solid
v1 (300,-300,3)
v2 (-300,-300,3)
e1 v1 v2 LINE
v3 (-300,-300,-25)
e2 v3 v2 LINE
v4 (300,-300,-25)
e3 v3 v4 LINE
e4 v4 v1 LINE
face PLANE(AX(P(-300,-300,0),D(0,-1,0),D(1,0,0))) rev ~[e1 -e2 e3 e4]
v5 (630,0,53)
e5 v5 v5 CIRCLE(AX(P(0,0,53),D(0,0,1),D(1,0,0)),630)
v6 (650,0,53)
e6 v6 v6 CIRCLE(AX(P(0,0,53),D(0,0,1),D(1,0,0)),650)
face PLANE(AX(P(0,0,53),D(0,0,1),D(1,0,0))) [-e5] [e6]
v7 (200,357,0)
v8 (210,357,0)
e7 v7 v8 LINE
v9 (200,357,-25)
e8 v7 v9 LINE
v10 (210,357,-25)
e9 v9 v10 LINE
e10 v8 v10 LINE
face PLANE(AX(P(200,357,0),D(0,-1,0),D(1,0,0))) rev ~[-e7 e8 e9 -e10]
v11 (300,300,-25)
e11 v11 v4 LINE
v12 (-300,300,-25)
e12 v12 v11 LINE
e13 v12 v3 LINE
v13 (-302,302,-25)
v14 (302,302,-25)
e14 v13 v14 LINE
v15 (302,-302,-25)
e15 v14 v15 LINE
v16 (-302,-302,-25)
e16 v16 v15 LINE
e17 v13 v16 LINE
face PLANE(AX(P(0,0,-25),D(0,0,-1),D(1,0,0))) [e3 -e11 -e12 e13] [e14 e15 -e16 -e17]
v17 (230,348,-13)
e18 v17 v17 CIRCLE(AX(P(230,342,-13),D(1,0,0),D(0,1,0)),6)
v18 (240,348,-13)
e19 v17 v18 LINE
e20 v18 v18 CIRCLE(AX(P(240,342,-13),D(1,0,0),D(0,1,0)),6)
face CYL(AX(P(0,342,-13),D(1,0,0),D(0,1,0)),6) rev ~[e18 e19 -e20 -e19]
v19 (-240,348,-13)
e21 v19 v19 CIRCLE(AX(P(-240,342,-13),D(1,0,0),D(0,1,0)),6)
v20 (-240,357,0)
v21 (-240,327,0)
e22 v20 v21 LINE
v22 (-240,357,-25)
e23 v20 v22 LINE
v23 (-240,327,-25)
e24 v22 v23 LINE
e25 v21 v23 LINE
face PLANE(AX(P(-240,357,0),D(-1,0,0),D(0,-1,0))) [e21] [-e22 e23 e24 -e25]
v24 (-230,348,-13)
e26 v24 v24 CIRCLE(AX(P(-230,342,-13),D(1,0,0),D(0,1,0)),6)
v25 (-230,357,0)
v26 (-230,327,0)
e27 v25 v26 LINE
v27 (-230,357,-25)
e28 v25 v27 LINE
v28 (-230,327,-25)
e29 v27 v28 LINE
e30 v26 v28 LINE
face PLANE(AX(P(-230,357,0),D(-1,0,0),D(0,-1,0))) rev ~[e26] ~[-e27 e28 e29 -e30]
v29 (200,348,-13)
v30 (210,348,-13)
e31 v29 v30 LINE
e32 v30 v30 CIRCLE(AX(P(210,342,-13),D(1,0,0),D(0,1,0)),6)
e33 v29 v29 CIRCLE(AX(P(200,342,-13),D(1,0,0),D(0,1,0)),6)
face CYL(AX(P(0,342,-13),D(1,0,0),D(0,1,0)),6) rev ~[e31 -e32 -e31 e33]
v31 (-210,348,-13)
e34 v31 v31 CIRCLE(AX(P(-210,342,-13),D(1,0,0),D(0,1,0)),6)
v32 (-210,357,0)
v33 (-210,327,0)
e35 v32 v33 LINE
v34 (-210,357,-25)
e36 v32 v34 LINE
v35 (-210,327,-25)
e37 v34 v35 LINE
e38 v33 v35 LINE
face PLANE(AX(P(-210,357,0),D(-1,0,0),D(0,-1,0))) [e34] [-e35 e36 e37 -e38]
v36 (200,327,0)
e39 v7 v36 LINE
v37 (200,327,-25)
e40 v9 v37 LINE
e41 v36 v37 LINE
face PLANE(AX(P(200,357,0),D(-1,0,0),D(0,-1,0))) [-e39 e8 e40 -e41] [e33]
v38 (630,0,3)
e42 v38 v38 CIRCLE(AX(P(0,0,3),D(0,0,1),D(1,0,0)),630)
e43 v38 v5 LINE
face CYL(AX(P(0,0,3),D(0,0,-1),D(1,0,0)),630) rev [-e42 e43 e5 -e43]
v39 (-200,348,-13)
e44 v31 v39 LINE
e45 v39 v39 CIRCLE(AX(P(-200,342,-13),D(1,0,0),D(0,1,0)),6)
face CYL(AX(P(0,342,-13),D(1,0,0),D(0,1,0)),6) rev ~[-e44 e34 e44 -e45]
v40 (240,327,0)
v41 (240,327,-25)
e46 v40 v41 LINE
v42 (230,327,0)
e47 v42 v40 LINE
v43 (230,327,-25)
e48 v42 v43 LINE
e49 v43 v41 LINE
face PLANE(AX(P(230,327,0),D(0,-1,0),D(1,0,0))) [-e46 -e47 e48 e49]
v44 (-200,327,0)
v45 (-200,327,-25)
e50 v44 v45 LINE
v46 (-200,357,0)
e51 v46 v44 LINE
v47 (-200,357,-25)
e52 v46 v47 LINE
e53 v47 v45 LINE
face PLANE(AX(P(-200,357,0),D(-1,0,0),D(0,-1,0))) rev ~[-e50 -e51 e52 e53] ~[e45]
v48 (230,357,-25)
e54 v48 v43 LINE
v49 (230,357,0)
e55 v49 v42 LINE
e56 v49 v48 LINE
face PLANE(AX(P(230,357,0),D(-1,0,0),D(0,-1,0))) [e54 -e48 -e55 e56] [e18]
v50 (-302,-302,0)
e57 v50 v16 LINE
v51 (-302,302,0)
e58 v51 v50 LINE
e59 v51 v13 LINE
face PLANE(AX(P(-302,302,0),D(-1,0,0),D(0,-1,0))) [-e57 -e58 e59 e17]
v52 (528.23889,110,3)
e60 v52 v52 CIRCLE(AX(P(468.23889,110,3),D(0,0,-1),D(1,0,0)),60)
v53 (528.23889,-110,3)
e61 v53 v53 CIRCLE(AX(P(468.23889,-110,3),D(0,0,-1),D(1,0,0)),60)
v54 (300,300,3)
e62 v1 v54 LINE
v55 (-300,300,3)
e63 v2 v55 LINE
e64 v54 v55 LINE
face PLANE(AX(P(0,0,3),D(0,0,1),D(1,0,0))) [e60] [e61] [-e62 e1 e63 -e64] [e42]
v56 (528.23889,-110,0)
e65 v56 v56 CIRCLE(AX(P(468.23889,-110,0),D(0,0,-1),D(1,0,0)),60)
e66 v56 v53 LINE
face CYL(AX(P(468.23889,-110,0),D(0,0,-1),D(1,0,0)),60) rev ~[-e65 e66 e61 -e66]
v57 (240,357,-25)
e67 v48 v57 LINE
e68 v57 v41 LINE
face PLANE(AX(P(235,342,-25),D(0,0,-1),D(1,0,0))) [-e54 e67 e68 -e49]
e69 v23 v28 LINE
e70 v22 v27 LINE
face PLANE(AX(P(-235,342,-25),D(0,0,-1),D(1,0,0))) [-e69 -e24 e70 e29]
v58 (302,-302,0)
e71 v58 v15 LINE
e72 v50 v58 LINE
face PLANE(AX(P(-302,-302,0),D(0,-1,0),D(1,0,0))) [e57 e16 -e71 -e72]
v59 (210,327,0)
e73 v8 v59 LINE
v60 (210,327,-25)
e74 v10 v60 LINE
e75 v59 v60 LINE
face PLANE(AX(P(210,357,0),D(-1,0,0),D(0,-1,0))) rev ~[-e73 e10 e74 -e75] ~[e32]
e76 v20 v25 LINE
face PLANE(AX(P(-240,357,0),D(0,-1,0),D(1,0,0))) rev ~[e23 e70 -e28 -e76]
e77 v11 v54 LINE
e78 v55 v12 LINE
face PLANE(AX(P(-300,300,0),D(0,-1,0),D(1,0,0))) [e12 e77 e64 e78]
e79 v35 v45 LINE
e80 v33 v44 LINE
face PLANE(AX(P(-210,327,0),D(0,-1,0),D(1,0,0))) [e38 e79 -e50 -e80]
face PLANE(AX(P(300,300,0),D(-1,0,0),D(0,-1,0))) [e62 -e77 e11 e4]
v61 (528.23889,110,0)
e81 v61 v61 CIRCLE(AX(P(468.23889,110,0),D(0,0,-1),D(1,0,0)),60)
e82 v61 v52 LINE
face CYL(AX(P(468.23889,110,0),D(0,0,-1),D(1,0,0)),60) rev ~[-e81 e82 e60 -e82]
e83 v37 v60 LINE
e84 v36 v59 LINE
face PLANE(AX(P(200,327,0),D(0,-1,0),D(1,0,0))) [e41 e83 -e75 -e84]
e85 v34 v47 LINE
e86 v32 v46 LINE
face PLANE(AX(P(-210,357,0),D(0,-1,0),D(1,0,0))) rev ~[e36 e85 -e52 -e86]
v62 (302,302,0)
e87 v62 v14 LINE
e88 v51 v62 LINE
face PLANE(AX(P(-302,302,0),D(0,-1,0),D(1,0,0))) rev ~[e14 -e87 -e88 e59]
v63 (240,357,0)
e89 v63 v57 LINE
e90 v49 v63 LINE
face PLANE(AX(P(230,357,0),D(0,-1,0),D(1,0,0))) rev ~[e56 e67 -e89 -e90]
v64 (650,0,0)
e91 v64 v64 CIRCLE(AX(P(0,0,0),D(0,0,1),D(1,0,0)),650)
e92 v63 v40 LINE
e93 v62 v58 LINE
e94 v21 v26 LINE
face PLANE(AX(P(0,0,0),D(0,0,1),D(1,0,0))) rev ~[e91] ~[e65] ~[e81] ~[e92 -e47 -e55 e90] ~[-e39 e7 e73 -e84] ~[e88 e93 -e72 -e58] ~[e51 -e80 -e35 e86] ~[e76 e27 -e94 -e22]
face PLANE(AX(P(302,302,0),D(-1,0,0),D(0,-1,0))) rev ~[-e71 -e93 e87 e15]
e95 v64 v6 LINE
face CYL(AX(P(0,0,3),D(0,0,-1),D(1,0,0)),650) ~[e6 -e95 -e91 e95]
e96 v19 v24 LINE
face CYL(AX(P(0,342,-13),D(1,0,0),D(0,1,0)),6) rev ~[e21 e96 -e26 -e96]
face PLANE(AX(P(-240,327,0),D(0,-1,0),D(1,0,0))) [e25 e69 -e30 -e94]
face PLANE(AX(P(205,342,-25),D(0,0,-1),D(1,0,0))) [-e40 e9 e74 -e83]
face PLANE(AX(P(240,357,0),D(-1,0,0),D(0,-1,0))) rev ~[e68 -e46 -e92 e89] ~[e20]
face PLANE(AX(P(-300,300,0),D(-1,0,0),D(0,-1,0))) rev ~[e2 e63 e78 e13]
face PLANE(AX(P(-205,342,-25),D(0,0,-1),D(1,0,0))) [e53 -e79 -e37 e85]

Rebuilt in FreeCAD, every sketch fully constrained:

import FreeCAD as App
import Part
import Sketcher

V = App.Vector
Q = App.Units.Quantity


def add_polygon(sketch, points):
    """Adds a closed chain of lines whose ends are joined by coincident constraints."""
    first, n = sketch.GeometryCount, len(points)
    for a, b in zip(points, points[1:] + points[:1]):
        sketch.addGeometry(Part.LineSegment(App.Vector(*a, 0), App.Vector(*b, 0)), False)
    for i in range(n):
        sketch.addConstraint(Sketcher.Constraint("Coincident", first + i, 2, first + (i + 1) % n, 1))

doc = App.newDocument("Part")
body = doc.addObject("PartDesign::Body", "Body")

# Sketch on XY plane
sketch1 = body.newObject("Sketcher::SketchObject", "Sketch")
sketch1.AttachmentSupport = (doc.getObject("XY_Plane"), [""])
sketch1.MapMode = "FlatFace"
sketch1.addGeometry(Part.Circle(V(0, 0, 0), V(0, 0, 1), 650), False)
sketch1.addConstraint(Sketcher.Constraint("Coincident", 0, 3, -1, 1))
sketch1.addConstraint(Sketcher.Constraint("Diameter", 0, Q("1300 mm")))
pad1 = body.newObject("PartDesign::Pad", "Pad")
pad1.Profile = sketch1
pad1.Length = 3

# Sketch on XY plane
sketch2 = body.newObject("Sketcher::SketchObject", "Sketch001")
sketch2.AttachmentSupport = (doc.getObject("XY_Plane"), [""])
sketch2.MapMode = "FlatFace"
sketch2.AttachmentOffset = App.Placement(V(0, 0, 3), App.Rotation())
sketch2.addGeometry(Part.Circle(V(0, 0, 0), V(0, 0, 1), 650), False)
sketch2.addGeometry(Part.Circle(V(0, 0, 0), V(0, 0, 1), 630), False)
sketch2.addConstraint(Sketcher.Constraint("Coincident", 0, 3, -1, 1))
sketch2.addConstraint(Sketcher.Constraint("Coincident", 1, 3, -1, 1))
sketch2.addConstraint(Sketcher.Constraint("Diameter", 0, Q("1300 mm")))
sketch2.addConstraint(Sketcher.Constraint("Diameter", 1, Q("1260 mm")))
pad2 = body.newObject("PartDesign::Pad", "Pad001")
pad2.Profile = sketch2
pad2.Length = 50

# Sketch on XY plane
sketch3 = body.newObject("Sketcher::SketchObject", "Sketch002")
sketch3.AttachmentSupport = (doc.getObject("XY_Plane"), [""])
sketch3.MapMode = "FlatFace"
add_polygon(sketch3, [(-300, -300), (-300, 300), (300, 300), (300, -300)])  # lines 0-3
sketch3.addGeometry(Part.Circle(V(468, -110, 0), V(0, 0, 1), 60), False)  # 4
sketch3.addGeometry(Part.Circle(V(468, 110, 0), V(0, 0, 1), 60), False)  # 5
sketch3.addConstraint(Sketcher.Constraint("Vertical", 0))
sketch3.addConstraint(Sketcher.Constraint("Horizontal", 1))
sketch3.addConstraint(Sketcher.Constraint("Vertical", 2))
sketch3.addConstraint(Sketcher.Constraint("Horizontal", 3))
sketch3.addConstraint(Sketcher.Constraint("Equal", 4, 5))
sketch3.addConstraint(Sketcher.Constraint("Symmetric", 0, 2, 2, 2, -1, 1))
sketch3.addConstraint(Sketcher.Constraint("Symmetric", 4, 3, 5, 3, -1))
sketch3.addConstraint(Sketcher.Constraint("Equal", 3, 0))
sketch3.addConstraint(Sketcher.Constraint("Diameter", 4, Q("120 mm")))
sketch3.addConstraint(Sketcher.Constraint("DistanceX", 1, 1, 1, 2, Q("600 mm")))
sketch3.addConstraint(Sketcher.Constraint("DistanceY", 4, 3, -1, 1, Q("110 mm")))
sketch3.addConstraint(Sketcher.Constraint("DistanceX", -1, 1, 4, 3, Q("468.23889 mm")))
pocket1 = body.newObject("PartDesign::Pocket", "Pocket")
pocket1.Profile = sketch3
pocket1.Length = 25
pocket1.Reversed = True

# Sketch on XY plane
sketch4 = body.newObject("Sketcher::SketchObject", "Sketch003")
sketch4.AttachmentSupport = (doc.getObject("XY_Plane"), [""])
sketch4.MapMode = "FlatFace"
add_polygon(sketch4, [(-302, -302), (-302, 302), (302, 302), (302, -302)])  # lines 0-3
add_polygon(sketch4, [(300, 300), (-300, 300), (-300, -300), (300, -300)])  # lines 4-7
sketch4.addConstraint(Sketcher.Constraint("Vertical", 0))
sketch4.addConstraint(Sketcher.Constraint("Horizontal", 1))
sketch4.addConstraint(Sketcher.Constraint("Vertical", 2))
sketch4.addConstraint(Sketcher.Constraint("Horizontal", 3))
sketch4.addConstraint(Sketcher.Constraint("Horizontal", 4))
sketch4.addConstraint(Sketcher.Constraint("Vertical", 5))
sketch4.addConstraint(Sketcher.Constraint("Horizontal", 6))
sketch4.addConstraint(Sketcher.Constraint("Vertical", 7))
sketch4.addConstraint(Sketcher.Constraint("Symmetric", 0, 2, 2, 2, -1, 1))
sketch4.addConstraint(Sketcher.Constraint("Symmetric", 4, 2, 6, 2, -1, 1))
sketch4.addConstraint(Sketcher.Constraint("Equal", 3, 0))
sketch4.addConstraint(Sketcher.Constraint("Equal", 6, 5))
sketch4.addConstraint(Sketcher.Constraint("DistanceX", 1, 1, 1, 2, Q("604 mm")))
sketch4.addConstraint(Sketcher.Constraint("DistanceX", 4, 2, 4, 1, Q("600 mm")))
pad3 = body.newObject("PartDesign::Pad", "Pad002")
pad3.Profile = sketch4
pad3.Length = 25
pad3.Reversed = True

# Sketch on XY plane
sketch5 = body.newObject("Sketcher::SketchObject", "Sketch004")
sketch5.AttachmentSupport = (doc.getObject("XY_Plane"), [""])
sketch5.MapMode = "FlatFace"
add_polygon(sketch5, [(-240, 327), (-240, 357), (-230, 357), (-230, 327)])  # lines 0-3
add_polygon(sketch5, [(-210, 327), (-210, 357), (-200, 357), (-200, 327)])  # lines 4-7
add_polygon(sketch5, [(200, 327), (200, 357), (210, 357), (210, 327)])  # lines 8-11
add_polygon(sketch5, [(230, 327), (230, 357), (240, 357), (240, 327)])  # lines 12-15
sketch5.addConstraint(Sketcher.Constraint("Vertical", 0))
sketch5.addConstraint(Sketcher.Constraint("Horizontal", 1))
sketch5.addConstraint(Sketcher.Constraint("Vertical", 2))
sketch5.addConstraint(Sketcher.Constraint("Horizontal", 3))
sketch5.addConstraint(Sketcher.Constraint("Vertical", 4))
sketch5.addConstraint(Sketcher.Constraint("Horizontal", 5))
sketch5.addConstraint(Sketcher.Constraint("Vertical", 6))
sketch5.addConstraint(Sketcher.Constraint("Horizontal", 7))
sketch5.addConstraint(Sketcher.Constraint("Vertical", 8))
sketch5.addConstraint(Sketcher.Constraint("Horizontal", 9))
sketch5.addConstraint(Sketcher.Constraint("Vertical", 10))
sketch5.addConstraint(Sketcher.Constraint("Horizontal", 11))
sketch5.addConstraint(Sketcher.Constraint("Vertical", 12))
sketch5.addConstraint(Sketcher.Constraint("Horizontal", 13))
sketch5.addConstraint(Sketcher.Constraint("Vertical", 14))
sketch5.addConstraint(Sketcher.Constraint("Horizontal", 15))
sketch5.addConstraint(Sketcher.Constraint("Symmetric", 5, 2, 8, 2, -2))
sketch5.addConstraint(Sketcher.Constraint("Symmetric", 7, 2, 10, 2, -2))
sketch5.addConstraint(Sketcher.Constraint("Symmetric", 1, 2, 12, 2, -2))
sketch5.addConstraint(Sketcher.Constraint("Symmetric", 3, 2, 14, 2, -2))
sketch5.addConstraint(Sketcher.Constraint("Horizontal", 1, 2, 4, 2))
sketch5.addConstraint(Sketcher.Constraint("Horizontal", 3, 2, 6, 2))
sketch5.addConstraint(Sketcher.Constraint("Equal", 3, 5))
sketch5.addConstraint(Sketcher.Constraint("DistanceX", 1, 1, 1, 2, Q("10 mm")))
sketch5.addConstraint(Sketcher.Constraint("DistanceY", 0, 1, 0, 2, Q("30 mm")))
sketch5.addConstraint(Sketcher.Constraint("DistanceX", 0, 2, -1, 1, Q("240 mm")))
sketch5.addConstraint(Sketcher.Constraint("DistanceY", -1, 1, 0, 2, Q("357 mm")))
sketch5.addConstraint(Sketcher.Constraint("DistanceX", 4, 2, -1, 1, Q("210 mm")))
pad4 = body.newObject("PartDesign::Pad", "Pad003")
pad4.Profile = sketch5
pad4.Length = 25
pad4.Reversed = True

# Sketch on YZ plane
sketch6 = body.newObject("Sketcher::SketchObject", "Sketch005")
sketch6.AttachmentSupport = (doc.getObject("YZ_Plane"), [""])
sketch6.MapMode = "FlatFace"
sketch6.addGeometry(Part.Circle(V(342, -13, 0), V(0, 0, 1), 6), False)
sketch6.addConstraint(Sketcher.Constraint("Diameter", 0, Q("12 mm")))
sketch6.addConstraint(Sketcher.Constraint("DistanceX", -1, 1, 0, 3, Q("342 mm")))
sketch6.addConstraint(Sketcher.Constraint("DistanceY", 0, 3, -1, 1, Q("13 mm")))
pocket2 = body.newObject("PartDesign::Pocket", "Pocket001")
pocket2.Profile = sketch6
pocket2.Length = 1000
pocket2.Midplane = True

doc.recompute()
